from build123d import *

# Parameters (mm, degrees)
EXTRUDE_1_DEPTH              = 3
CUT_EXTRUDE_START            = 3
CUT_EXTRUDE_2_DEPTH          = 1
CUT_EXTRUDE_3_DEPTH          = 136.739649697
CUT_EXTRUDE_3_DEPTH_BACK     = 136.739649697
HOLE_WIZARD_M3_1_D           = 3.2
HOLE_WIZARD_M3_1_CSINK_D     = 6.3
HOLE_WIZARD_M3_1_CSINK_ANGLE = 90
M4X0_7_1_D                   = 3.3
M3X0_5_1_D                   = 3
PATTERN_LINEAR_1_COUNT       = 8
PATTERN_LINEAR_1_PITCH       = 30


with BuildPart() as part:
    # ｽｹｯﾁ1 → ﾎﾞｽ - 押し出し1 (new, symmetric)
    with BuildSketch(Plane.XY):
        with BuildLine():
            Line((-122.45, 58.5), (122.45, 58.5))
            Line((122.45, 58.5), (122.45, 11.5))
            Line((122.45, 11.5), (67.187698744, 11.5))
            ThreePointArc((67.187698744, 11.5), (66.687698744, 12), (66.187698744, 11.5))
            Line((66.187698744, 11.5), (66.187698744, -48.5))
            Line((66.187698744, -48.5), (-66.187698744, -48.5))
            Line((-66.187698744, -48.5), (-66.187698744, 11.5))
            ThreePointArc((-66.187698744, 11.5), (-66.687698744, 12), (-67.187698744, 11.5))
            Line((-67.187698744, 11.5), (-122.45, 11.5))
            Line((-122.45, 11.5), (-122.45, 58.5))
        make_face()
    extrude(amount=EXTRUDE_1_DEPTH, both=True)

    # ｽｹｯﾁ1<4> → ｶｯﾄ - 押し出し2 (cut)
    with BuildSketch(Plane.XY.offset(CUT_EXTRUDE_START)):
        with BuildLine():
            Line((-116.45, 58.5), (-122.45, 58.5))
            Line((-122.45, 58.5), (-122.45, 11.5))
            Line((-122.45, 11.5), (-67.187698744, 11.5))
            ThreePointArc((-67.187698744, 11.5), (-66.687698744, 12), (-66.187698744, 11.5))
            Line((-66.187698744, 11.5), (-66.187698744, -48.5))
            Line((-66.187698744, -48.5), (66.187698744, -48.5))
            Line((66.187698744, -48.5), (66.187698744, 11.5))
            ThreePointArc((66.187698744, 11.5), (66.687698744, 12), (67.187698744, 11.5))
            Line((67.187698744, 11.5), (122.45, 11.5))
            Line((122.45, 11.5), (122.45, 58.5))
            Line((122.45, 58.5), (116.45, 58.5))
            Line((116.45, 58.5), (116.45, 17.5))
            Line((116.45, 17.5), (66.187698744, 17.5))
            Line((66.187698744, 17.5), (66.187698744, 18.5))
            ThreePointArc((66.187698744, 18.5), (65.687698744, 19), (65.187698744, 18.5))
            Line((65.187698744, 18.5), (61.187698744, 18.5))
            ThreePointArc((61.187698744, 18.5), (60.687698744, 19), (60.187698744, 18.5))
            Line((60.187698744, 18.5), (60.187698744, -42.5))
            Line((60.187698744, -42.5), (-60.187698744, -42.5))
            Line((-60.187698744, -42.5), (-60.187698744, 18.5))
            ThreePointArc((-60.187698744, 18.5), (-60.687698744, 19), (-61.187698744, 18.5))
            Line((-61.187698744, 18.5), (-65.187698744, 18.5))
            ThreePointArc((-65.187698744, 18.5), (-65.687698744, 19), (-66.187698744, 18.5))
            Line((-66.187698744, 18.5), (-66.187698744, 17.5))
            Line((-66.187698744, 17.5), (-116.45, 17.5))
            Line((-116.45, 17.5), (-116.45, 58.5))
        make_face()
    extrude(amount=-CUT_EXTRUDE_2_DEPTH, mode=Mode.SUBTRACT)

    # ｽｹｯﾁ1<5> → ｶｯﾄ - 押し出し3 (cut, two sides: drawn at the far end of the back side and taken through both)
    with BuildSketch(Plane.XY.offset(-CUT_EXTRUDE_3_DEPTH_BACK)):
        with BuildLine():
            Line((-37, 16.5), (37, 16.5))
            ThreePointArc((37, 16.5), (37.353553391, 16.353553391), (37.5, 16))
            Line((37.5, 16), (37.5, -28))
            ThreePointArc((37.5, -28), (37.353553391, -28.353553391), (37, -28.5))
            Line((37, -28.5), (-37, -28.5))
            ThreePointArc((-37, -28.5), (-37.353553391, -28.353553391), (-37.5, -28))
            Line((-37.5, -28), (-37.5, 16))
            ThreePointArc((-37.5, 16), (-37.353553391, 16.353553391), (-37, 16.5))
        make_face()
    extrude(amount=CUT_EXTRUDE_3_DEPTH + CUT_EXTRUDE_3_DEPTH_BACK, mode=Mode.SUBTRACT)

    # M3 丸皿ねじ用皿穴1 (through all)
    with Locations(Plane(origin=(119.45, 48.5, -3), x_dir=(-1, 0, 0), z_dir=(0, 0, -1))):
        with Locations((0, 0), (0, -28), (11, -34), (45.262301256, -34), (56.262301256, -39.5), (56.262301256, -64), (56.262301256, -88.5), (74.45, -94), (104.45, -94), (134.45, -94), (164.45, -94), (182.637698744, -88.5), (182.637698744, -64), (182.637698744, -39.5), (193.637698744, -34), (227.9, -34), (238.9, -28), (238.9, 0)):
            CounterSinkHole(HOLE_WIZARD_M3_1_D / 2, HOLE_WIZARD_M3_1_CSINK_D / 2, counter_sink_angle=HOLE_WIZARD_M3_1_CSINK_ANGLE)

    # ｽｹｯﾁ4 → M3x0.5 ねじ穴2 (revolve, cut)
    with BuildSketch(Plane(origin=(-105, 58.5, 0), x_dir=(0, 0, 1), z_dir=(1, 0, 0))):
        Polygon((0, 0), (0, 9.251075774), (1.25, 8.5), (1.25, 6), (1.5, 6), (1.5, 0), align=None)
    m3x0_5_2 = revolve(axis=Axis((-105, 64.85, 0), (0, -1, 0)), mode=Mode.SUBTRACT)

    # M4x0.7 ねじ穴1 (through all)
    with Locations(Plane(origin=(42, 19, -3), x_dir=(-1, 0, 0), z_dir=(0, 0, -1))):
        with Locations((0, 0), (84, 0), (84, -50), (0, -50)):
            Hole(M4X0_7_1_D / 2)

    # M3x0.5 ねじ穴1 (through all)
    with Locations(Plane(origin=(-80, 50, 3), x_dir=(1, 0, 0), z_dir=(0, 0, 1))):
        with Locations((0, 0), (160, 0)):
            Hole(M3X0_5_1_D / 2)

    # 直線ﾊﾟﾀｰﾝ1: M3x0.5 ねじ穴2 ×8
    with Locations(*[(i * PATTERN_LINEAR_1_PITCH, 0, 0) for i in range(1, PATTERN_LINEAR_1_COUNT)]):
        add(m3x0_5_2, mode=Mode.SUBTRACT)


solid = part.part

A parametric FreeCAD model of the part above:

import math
import FreeCAD as App
import Part
import Sketcher
Q = App.Units.Quantity


def add_polygon(sketch, points):
    """Adds a closed chain of lines whose ends are joined by coincident constraints."""
    first, n = sketch.GeometryCount, len(points)
    for a, b in zip(points, points[1:] + points[:1]):
        sketch.addGeometry(Part.LineSegment(App.Vector(*a, 0), App.Vector(*b, 0)), False)
    for i in range(n):
        sketch.addConstraint(Sketcher.Constraint("Coincident", first + i, 2, first + (i + 1) % n, 1))

doc = App.newDocument("Part")
body = doc.addObject("PartDesign::Body", "Body")

# Sketch on XY plane
sketch1 = body.newObject("Sketcher::SketchObject", "Sketch")
sketch1.AttachmentSupport = (doc.getObject("XY_Plane"), [""])
sketch1.MapMode = "FlatFace"
sketch1.addGeometry([
    Part.LineSegment(App.Vector(122.5, 58.5, 0), App.Vector(-122.5, 58.5, 0)),  # 0
    Part.LineSegment(App.Vector(-122.5, 58.5, 0), App.Vector(-122.5, 11.5, 0)),  # 1
    Part.LineSegment(App.Vector(-122.5, 11.5, 0), App.Vector(-67.2, 11.5, 0)),  # 2
    Part.ArcOfCircle(Part.Circle(App.Vector(-66.7, 11.5, 0), App.Vector(0, 0, 1), 0.5), math.radians(0), math.radians(180)),  # 3
    Part.LineSegment(App.Vector(-66.2, 11.5, 0), App.Vector(-66.2, -48.5, 0)),  # 4
    Part.LineSegment(App.Vector(-66.2, -48.5, 0), App.Vector(66.2, -48.5, 0)),  # 5
    Part.LineSegment(App.Vector(66.2, -48.5, 0), App.Vector(66.2, 11.5, 0)),  # 6
    Part.ArcOfCircle(Part.Circle(App.Vector(66.7, 11.5, 0), App.Vector(0, 0, 1), 0.5), math.radians(0), math.radians(180)),  # 7
    Part.LineSegment(App.Vector(67.2, 11.5, 0), App.Vector(122.5, 11.5, 0)),  # 8
    Part.LineSegment(App.Vector(122.5, 11.5, 0), App.Vector(122.5, 58.5, 0)),  # 9
], False)
sketch1.addConstraint([
    Sketcher.Constraint("Coincident", 0, 2, 1, 1),
    Sketcher.Constraint("Coincident", 1, 2, 2, 1),
    Sketcher.Constraint("Coincident", 2, 2, 3, 2),
    Sketcher.Constraint("Tangent", 3, 1, 4, 1),
    Sketcher.Constraint("Coincident", 4, 2, 5, 1),
    Sketcher.Constraint("Coincident", 5, 2, 6, 1),
    Sketcher.Constraint("Tangent", 6, 2, 7, 2),
    Sketcher.Constraint("Coincident", 7, 1, 8, 1),
    Sketcher.Constraint("Coincident", 8, 2, 9, 1),
    Sketcher.Constraint("Coincident", 9, 2, 0, 1),
    Sketcher.Constraint("Horizontal", 0),
    Sketcher.Constraint("Vertical", 1),
    Sketcher.Constraint("Horizontal", 2),
    Sketcher.Constraint("Vertical", 4),
    Sketcher.Constraint("Horizontal", 5),
    Sketcher.Constraint("Vertical", 6),
    Sketcher.Constraint("Horizontal", 8),
    Sketcher.Constraint("Vertical", 9),
    Sketcher.Constraint("Equal", 3, 7),
    Sketcher.Constraint("Symmetric", 3, 3, 7, 3, -2),
    Sketcher.Constraint("Symmetric", 1, 2, 8, 2, -2),
    Sketcher.Constraint("Horizontal", 7, 3, 1, 2),
    Sketcher.Constraint("Radius", 3, Q("0.5 mm")),
    Sketcher.Constraint("DistanceY", 1, 2, 1, 1, Q("47 mm")),
    Sketcher.Constraint("DistanceY", 4, 2, 4, 1, Q("60 mm")),
    Sketcher.Constraint("DistanceX", 0, 2, 0, 1, Q("244.9 mm")),
    Sketcher.Constraint("DistanceY", -1, 1, 3, 3, Q("11.5 mm")),
    Sketcher.Constraint("DistanceX", 2, 1, 2, 2, Q("55.262301 mm")),
])
pad1 = body.newObject("PartDesign::Pad", "Pad")
pad1.Profile = sketch1
pad1.Length = 6
pad1.Midplane = True

# Sketch on XY plane
sketch2 = body.newObject("Sketcher::SketchObject", "Sketch001")
sketch2.AttachmentSupport = (doc.getObject("XY_Plane"), [""])
sketch2.MapMode = "FlatFace"
sketch2.AttachmentOffset = App.Placement(App.Vector(0, 0, 3), App.Rotation())
sketch2.addGeometry([
    Part.LineSegment(App.Vector(-116.5, 58.5, 0), App.Vector(-122.5, 58.5, 0)),  # 0
    Part.LineSegment(App.Vector(-122.5, 58.5, 0), App.Vector(-122.5, 11.5, 0)),  # 1
    Part.LineSegment(App.Vector(-122.5, 11.5, 0), App.Vector(-67.2, 11.5, 0)),  # 2
    Part.ArcOfCircle(Part.Circle(App.Vector(-66.7, 11.5, 0), App.Vector(0, 0, 1), 0.5), math.radians(0), math.radians(180)),  # 3
    Part.LineSegment(App.Vector(-66.2, 11.5, 0), App.Vector(-66.2, -48.5, 0)),  # 4
    Part.LineSegment(App.Vector(-66.2, -48.5, 0), App.Vector(66.2, -48.5, 0)),  # 5
    Part.LineSegment(App.Vector(66.2, -48.5, 0), App.Vector(66.2, 11.5, 0)),  # 6
    Part.ArcOfCircle(Part.Circle(App.Vector(66.7, 11.5, 0), App.Vector(0, 0, 1), 0.5), math.radians(0), math.radians(180)),  # 7
    Part.LineSegment(App.Vector(67.2, 11.5, 0), App.Vector(122.5, 11.5, 0)),  # 8
    Part.LineSegment(App.Vector(122.5, 11.5, 0), App.Vector(122.5, 58.5, 0)),  # 9
    Part.LineSegment(App.Vector(122.5, 58.5, 0), App.Vector(116.5, 58.5, 0)),  # 10
    Part.LineSegment(App.Vector(116.5, 58.5, 0), App.Vector(116.5, 17.5, 0)),  # 11
    Part.LineSegment(App.Vector(116.5, 17.5, 0), App.Vector(66.2, 17.5, 0)),  # 12
    Part.LineSegment(App.Vector(66.2, 17.5, 0), App.Vector(66.2, 18.5, 0)),  # 13
    Part.ArcOfCircle(Part.Circle(App.Vector(65.7, 18.5, 0), App.Vector(0, 0, 1), 0.5), math.radians(0), math.radians(180)),  # 14
    Part.LineSegment(App.Vector(65.2, 18.5, 0), App.Vector(61.2, 18.5, 0)),  # 15
    Part.ArcOfCircle(Part.Circle(App.Vector(60.7, 18.5, 0), App.Vector(0, 0, 1), 0.5), math.radians(0), math.radians(180)),  # 16
    Part.LineSegment(App.Vector(60.2, 18.5, 0), App.Vector(60.2, -42.5, 0)),  # 17
    Part.LineSegment(App.Vector(60.2, -42.5, 0), App.Vector(-60.2, -42.5, 0)),  # 18
    Part.LineSegment(App.Vector(-60.2, -42.5, 0), App.Vector(-60.2, 18.5, 0)),  # 19
    Part.ArcOfCircle(Part.Circle(App.Vector(-60.7, 18.5, 0), App.Vector(0, 0, 1), 0.5), math.radians(0), math.radians(180)),  # 20
    Part.LineSegment(App.Vector(-61.2, 18.5, 0), App.Vector(-65.2, 18.5, 0)),  # 21
    Part.ArcOfCircle(Part.Circle(App.Vector(-65.7, 18.5, 0), App.Vector(0, 0, 1), 0.5), math.radians(0), math.radians(180)),  # 22
    Part.LineSegment(App.Vector(-66.2, 18.5, 0), App.Vector(-66.2, 17.5, 0)),  # 23
    Part.LineSegment(App.Vector(-66.2, 17.5, 0), App.Vector(-116.5, 17.5, 0)),  # 24
    Part.LineSegment(App.Vector(-116.5, 17.5, 0), App.Vector(-116.5, 58.5, 0)),  # 25
], False)
sketch2.addConstraint([
    Sketcher.Constraint("Coincident", 0, 2, 1, 1),
    Sketcher.Constraint("Coincident", 1, 2, 2, 1),
    Sketcher.Constraint("Coincident", 2, 2, 3, 2),
    Sketcher.Constraint("Tangent", 3, 1, 4, 1),
    Sketcher.Constraint("Coincident", 4, 2, 5, 1),
    Sketcher.Constraint("Coincident", 5, 2, 6, 1),
    Sketcher.Constraint("Tangent", 6, 2, 7, 2),
    Sketcher.Constraint("Coincident", 7, 1, 8, 1),
    Sketcher.Constraint("Coincident", 8, 2, 9, 1),
    Sketcher.Constraint("Coincident", 9, 2, 10, 1),
    Sketcher.Constraint("Coincident", 10, 2, 11, 1),
    Sketcher.Constraint("Coincident", 11, 2, 12, 1),
    Sketcher.Constraint("Coincident", 12, 2, 13, 1),
    Sketcher.Constraint("Tangent", 13, 2, 14, 1),
    Sketcher.Constraint("Coincident", 14, 2, 15, 1),
    Sketcher.Constraint("Coincident", 15, 2, 16, 1),
    Sketcher.Constraint("Tangent", 16, 2, 17, 1),
    Sketcher.Constraint("Coincident", 17, 2, 18, 1),
    Sketcher.Constraint("Coincident", 18, 2, 19, 1),
    Sketcher.Constraint("Tangent", 19, 2, 20, 1),
    Sketcher.Constraint("Coincident", 20, 2, 21, 1),
    Sketcher.Constraint("Coincident", 21, 2, 22, 1),
    Sketcher.Constraint("Tangent", 22, 2, 23, 1),
    Sketcher.Constraint("Coincident", 23, 2, 24, 1),
    Sketcher.Constraint("Coincident", 24, 2, 25, 1),
    Sketcher.Constraint("Coincident", 25, 2, 0, 1),
    Sketcher.Constraint("Horizontal", 0),
    Sketcher.Constraint("Vertical", 1),
    Sketcher.Constraint("Horizontal", 2),
    Sketcher.Constraint("Vertical", 4),
    Sketcher.Constraint("Horizontal", 5),
    Sketcher.Constraint("Vertical", 6),
    Sketcher.Constraint("Horizontal", 8),
    Sketcher.Constraint("Vertical", 9),
    Sketcher.Constraint("Horizontal", 10),
    Sketcher.Constraint("Vertical", 11),
    Sketcher.Constraint("Horizontal", 12),
    Sketcher.Constraint("Vertical", 13),
    Sketcher.Constraint("Horizontal", 15),
    Sketcher.Constraint("Vertical", 17),
    Sketcher.Constraint("Horizontal", 18),
    Sketcher.Constraint("Vertical", 19),
    Sketcher.Constraint("Horizontal", 21),
    Sketcher.Constraint("Vertical", 23),
    Sketcher.Constraint("Horizontal", 24),
    Sketcher.Constraint("Vertical", 25),
    Sketcher.Constraint("Equal", 3, 7),
    Sketcher.Constraint("Equal", 7, 14),
    Sketcher.Constraint("Equal", 14, 16),
    Sketcher.Constraint("Equal", 16, 20),
    Sketcher.Constraint("Equal", 20, 22),
    Sketcher.Constraint("Symmetric", 3, 3, 7, 3, -2),
    Sketcher.Constraint("Symmetric", 16, 3, 20, 3, -2),
    Sketcher.Constraint("Symmetric", 14, 3, 22, 3, -2),
    Sketcher.Constraint("Symmetric", 1, 2, 8, 2, -2),
    Sketcher.Constraint("Symmetric", 11, 2, 24, 2, -2),
    Sketcher.Constraint("Horizontal", 14, 3, 16, 3),
    Sketcher.Constraint("Horizontal", 7, 3, 1, 2),
    Sketcher.Constraint("Horizontal", 0, 2, 9, 2),
    Sketcher.Constraint("Horizontal", 13, 2, 14, 2),
    Sketcher.Constraint("Horizontal", 19, 2, 20, 2),
    Sketcher.Constraint("Vertical", 6, 2, 12, 2),
    Sketcher.Constraint("Radius", 3, Q("0.5 mm")),
    Sketcher.Constraint("DistanceX", 0, 2, 0, 1, Q("6 mm")),
    Sketcher.Constraint("DistanceX", 15, 2, 15, 1, Q("4 mm")),
    Sketcher.Constraint("DistanceY", 1, 2, 1, 1, Q("47 mm")),
    Sketcher.Constraint("DistanceY", 4, 2, 4, 1, Q("60 mm")),
    Sketcher.Constraint("DistanceY", 11, 2, 11, 1, Q("41 mm")),
    Sketcher.Constraint("DistanceY", 13, 1, 13, 2, Q("1 mm")),
    Sketcher.Constraint("DistanceY", 17, 2, 17, 1, Q("61 mm")),
    Sketcher.Constraint("DistanceY", -1, 1, 3, 3, Q("11.5 mm")),
    Sketcher.Constraint("DistanceX", 0, 2, -1, 1, Q("122.45 mm")),
    Sketcher.Constraint("DistanceX", 2, 1, 2, 2, Q("55.262301 mm")),
])
pocket1 = body.newObject("PartDesign::Pocket", "Pocket")
pocket1.Profile = sketch2
pocket1.Length = 1

# Sketch on XY plane
sketch3 = body.newObject("Sketcher::SketchObject", "Sketch002")
sketch3.AttachmentSupport = (doc.getObject("XY_Plane"), [""])
sketch3.MapMode = "FlatFace"
sketch3.addGeometry([
    Part.LineSegment(App.Vector(37, 16.5, 0), App.Vector(-37, 16.5, 0)),  # 0
    Part.ArcOfCircle(Part.Circle(App.Vector(-37, 16, 0), App.Vector(0, 0, 1), 0.5), math.radians(90), math.radians(180)),  # 1
    Part.LineSegment(App.Vector(-37.5, 16, 0), App.Vector(-37.5, -28, 0)),  # 2
    Part.ArcOfCircle(Part.Circle(App.Vector(-37, -28, 0), App.Vector(0, 0, 1), 0.5), math.radians(180), math.radians(270)),  # 3
    Part.LineSegment(App.Vector(-37, -28.5, 0), App.Vector(37, -28.5, 0)),  # 4
    Part.ArcOfCircle(Part.Circle(App.Vector(37, -28, 0), App.Vector(0, 0, 1), 0.5), math.radians(-90), math.radians(0)),  # 5
    Part.LineSegment(App.Vector(37.5, -28, 0), App.Vector(37.5, 16, 0)),  # 6
    Part.ArcOfCircle(Part.Circle(App.Vector(37, 16, 0), App.Vector(0, 0, 1), 0.5), math.radians(0), math.radians(90)),  # 7
], False)
sketch3.addConstraint([
    Sketcher.Constraint("Tangent", 0, 2, 1, 1),
    Sketcher.Constraint("Tangent", 1, 2, 2, 1),
    Sketcher.Constraint("Tangent", 2, 2, 3, 1),
    Sketcher.Constraint("Tangent", 3, 2, 4, 1),
    Sketcher.Constraint("Tangent", 4, 2, 5, 1),
    Sketcher.Constraint("Tangent", 5, 2, 6, 1),
    Sketcher.Constraint("Tangent", 6, 2, 7, 1),
    Sketcher.Constraint("Tangent", 7, 2, 0, 1),
    Sketcher.Constraint("Horizontal", 0),
    Sketcher.Constraint("Vertical", 2),
    Sketcher.Constraint("Horizontal", 4),
    Sketcher.Constraint("Vertical", 6),
    Sketcher.Constraint("Equal", 1, 3),
    Sketcher.Constraint("Equal", 3, 5),
    Sketcher.Constraint("Equal", 5, 7),
    Sketcher.Constraint("Radius", 1, Q("0.5 mm")),
    Sketcher.Constraint("DistanceX", 0, 2, 0, 1, Q("74 mm")),
    Sketcher.Constraint("DistanceY", 2, 2, 2, 1, Q("44 mm")),
    Sketcher.Constraint("DistanceX", 1, 3, -1, 1, Q("37 mm")),
    Sketcher.Constraint("DistanceY", -1, 1, 1, 3, Q("16 mm")),
])
pocket2 = body.newObject("PartDesign::Pocket", "Pocket001")
pocket2.Profile = sketch3
pocket2.Type = "ThroughAll"
pocket2.Midplane = True

# Sketch on XY plane
sketch4 = body.newObject("Sketcher::SketchObject", "Sketch003")
sketch4.AttachmentSupport = (doc.getObject("XY_Plane"), [""])
sketch4.MapMode = "FlatFace"
sketch4.AttachmentOffset = App.Placement(App.Vector(0, 0, -3), App.Rotation())
sketch4.addGeometry([
    Part.Circle(App.Vector(119.5, 48.5, 0), App.Vector(0, 0, 1), 1.6),  # 0
    Part.Circle(App.Vector(119.5, 20.5, 0), App.Vector(0, 0, 1), 1.6),  # 1
    Part.Circle(App.Vector(108.5, 14.5, 0), App.Vector(0, 0, 1), 1.6),  # 2
    Part.Circle(App.Vector(74.2, 14.5, 0), App.Vector(0, 0, 1), 1.6),  # 3
    Part.Circle(App.Vector(63.2, 9, 0), App.Vector(0, 0, 1), 1.6),  # 4
    Part.Circle(App.Vector(63.2, -15.5, 0), App.Vector(0, 0, 1), 1.6),  # 5
    Part.Circle(App.Vector(63.2, -40, 0), App.Vector(0, 0, 1), 1.6),  # 6
    Part.Circle(App.Vector(45, -45.5, 0), App.Vector(0, 0, 1), 1.6),  # 7
    Part.Circle(App.Vector(15, -45.5, 0), App.Vector(0, 0, 1), 1.6),  # 8
    Part.Circle(App.Vector(-15, -45.5, 0), App.Vector(0, 0, 1), 1.6),  # 9
    Part.Circle(App.Vector(-45, -45.5, 0), App.Vector(0, 0, 1), 1.6),  # 10
    Part.Circle(App.Vector(-63.2, -40, 0), App.Vector(0, 0, 1), 1.6),  # 11
    Part.Circle(App.Vector(-63.2, -15.5, 0), App.Vector(0, 0, 1), 1.6),  # 12
    Part.Circle(App.Vector(-63.2, 9, 0), App.Vector(0, 0, 1), 1.6),  # 13
    Part.Circle(App.Vector(-74.2, 14.5, 0), App.Vector(0, 0, 1), 1.6),  # 14
    Part.Circle(App.Vector(-108.5, 14.5, 0), App.Vector(0, 0, 1), 1.6),  # 15
    Part.Circle(App.Vector(-119.5, 20.5, 0), App.Vector(0, 0, 1), 1.6),  # 16
    Part.Circle(App.Vector(-119.5, 48.5, 0), App.Vector(0, 0, 1), 1.6),  # 17
], False)
sketch4.addConstraint([
    Sketcher.Constraint("Equal", 0, 1),
    Sketcher.Constraint("Equal", 1, 2),
    Sketcher.Constraint("Equal", 2, 3),
    Sketcher.Constraint("Equal", 3, 4),
    Sketcher.Constraint("Equal", 4, 5),
    Sketcher.Constraint("Equal", 5, 6),
    Sketcher.Constraint("Equal", 6, 7),
    Sketcher.Constraint("Equal", 7, 8),
    Sketcher.Constraint("Equal", 8, 9),
    Sketcher.Constraint("Equal", 9, 10),
    Sketcher.Constraint("Equal", 10, 11),
    Sketcher.Constraint("Equal", 11, 12),
    Sketcher.Constraint("Equal", 12, 13),
    Sketcher.Constraint("Equal", 13, 14),
    Sketcher.Constraint("Equal", 14, 15),
    Sketcher.Constraint("Equal", 15, 16),
    Sketcher.Constraint("Equal", 16, 17),
    Sketcher.Constraint("Symmetric", 8, 3, 9, 3, -2),
    Sketcher.Constraint("Symmetric", 7, 3, 10, 3, -2),
    Sketcher.Constraint("Symmetric", 6, 3, 11, 3, -2),
    Sketcher.Constraint("Symmetric", 5, 3, 12, 3, -2),
    Sketcher.Constraint("Symmetric", 4, 3, 13, 3, -2),
    Sketcher.Constraint("Symmetric", 3, 3, 14, 3, -2),
    Sketcher.Constraint("Symmetric", 2, 3, 15, 3, -2),
    Sketcher.Constraint("Symmetric", 1, 3, 16, 3, -2),
    Sketcher.Constraint("Symmetric", 0, 3, 17, 3, -2),
    Sketcher.Constraint("Horizontal", 2, 3, 3, 3),
    Sketcher.Constraint("Horizontal", 7, 3, 8, 3),
    Sketcher.Constraint("Vertical", 0, 3, 1, 3),
    Sketcher.Constraint("Vertical", 4, 3, 5, 3),
    Sketcher.Constraint("Vertical", 5, 3, 6, 3),
    Sketcher.Constraint("Diameter", 0, Q("3.2 mm")),
    Sketcher.Constraint("DistanceY", -1, 1, 4, 3, Q("9 mm")),
    Sketcher.Constraint("DistanceY", 6, 3, -1, 1, Q("40 mm")),
    Sketcher.Constraint("DistanceX", -1, 1, 7, 3, Q("45 mm")),
    Sketcher.Constraint("DistanceX", -1, 1, 8, 3, Q("15 mm")),
    Sketcher.Constraint("DistanceY", 1, 3, 0, 3, Q("28 mm")),
    Sketcher.Constraint("DistanceX", 2, 3, 1, 3, Q("11 mm")),
    Sketcher.Constraint("DistanceY", 2, 3, 1, 3, Q("6 mm")),
    Sketcher.Constraint("DistanceX", 4, 3, 3, 3, Q("11 mm")),
    Sketcher.Constraint("DistanceY", 5, 3, 3, 3, Q("30 mm")),
    Sketcher.Constraint("DistanceY", 7, 3, 5, 3, Q("30 mm")),
    Sketcher.Constraint("DistanceY", -1, 1, 0, 3, Q("48.5 mm")),
    Sketcher.Constraint("DistanceX", -1, 1, 0, 3, Q("119.45 mm")),
    Sketcher.Constraint("DistanceX", -1, 1, 3, 3, Q("74.187699 mm")),
])
doc.recompute()
hole = body.newObject("PartDesign::Hole", "Hole")
hole.Profile = sketch4
hole.ThreadType = "None"
hole.Diameter = 3.2
hole.DepthType = "ThroughAll"
hole.HoleCutType = "Countersink"
hole.HoleCutDiameter = 6.3
hole.HoleCutCountersinkAngle = 90
hole.Reversed = True

# Sketch on YZ plane
sketch5 = body.newObject("Sketcher::SketchObject", "Sketch004")
sketch5.AttachmentSupport = (doc.getObject("YZ_Plane"), [""])
sketch5.MapMode = "FlatFace"
sketch5.AttachmentOffset = App.Placement(App.Vector(0, 0, -105), App.Rotation())
add_polygon(sketch5, [(49.25, 0), (58.5, 0), (58.5, 1.5), (52.5, 1.5), (52.5, 1.25), (50, 1.25)])  # lines 0-5
sketch5.addConstraint([
    Sketcher.Constraint("Horizontal", 0),
    Sketcher.Constraint("Vertical", 1),
    Sketcher.Constraint("Horizontal", 2),
    Sketcher.Constraint("Vertical", 3),
    Sketcher.Constraint("Horizontal", 4),
    Sketcher.Constraint("PointOnObject", 0, 2, -1),
    Sketcher.Constraint("DistanceX", 2, 2, 2, 1, Q("6 mm")),
    Sketcher.Constraint("Angle", 5, Q("-121 deg")),
    Sketcher.Constraint("DistanceX", 4, 2, 4, 1, Q("2.5 mm")),
    Sketcher.Constraint("DistanceY", 1, 1, 1, 2, Q("1.5 mm")),
    Sketcher.Constraint("DistanceX", -1, 1, 4, 2, Q("50 mm")),
    Sketcher.Constraint("DistanceY", 3, 2, 3, 1, Q("0.25 mm")),
])
groove = body.newObject("PartDesign::Groove", "Groove")
groove.Profile = sketch5
groove.ReferenceAxis = (sketch5, ["H_Axis"])
groove.Angle = 360

# Sketch on XY plane
sketch6 = body.newObject("Sketcher::SketchObject", "Sketch005")
sketch6.AttachmentSupport = (doc.getObject("XY_Plane"), [""])
sketch6.MapMode = "FlatFace"
sketch6.AttachmentOffset = App.Placement(App.Vector(0, 0, -3), App.Rotation())
sketch6.addGeometry([
    Part.Circle(App.Vector(42, 19, 0), App.Vector(0, 0, 1), 1.6),
    Part.Circle(App.Vector(-42, 19, 0), App.Vector(0, 0, 1), 1.6),
    Part.Circle(App.Vector(-42, -31, 0), App.Vector(0, 0, 1), 1.6),
    Part.Circle(App.Vector(42, -31, 0), App.Vector(0, 0, 1), 1.6),
], False)
sketch6.addConstraint([
    Sketcher.Constraint("Equal", 0, 1),
    Sketcher.Constraint("Equal", 1, 2),
    Sketcher.Constraint("Equal", 2, 3),
    Sketcher.Constraint("Symmetric", 0, 3, 1, 3, -2),
    Sketcher.Constraint("Symmetric", 2, 3, 3, 3, -2),
    Sketcher.Constraint("Vertical", 1, 3, 2, 3),
    Sketcher.Constraint("Diameter", 0, Q("3.3 mm")),
    Sketcher.Constraint("DistanceX", -1, 1, 0, 3, Q("42 mm")),
    Sketcher.Constraint("DistanceY", -1, 1, 0, 3, Q("19 mm")),
    Sketcher.Constraint("DistanceY", 2, 3, -1, 1, Q("31 mm")),
])
doc.recompute()
hole2 = body.newObject("PartDesign::Hole", "Hole001")
hole2.Profile = sketch6
hole2.ThreadType = "None"
hole2.Diameter = 3.3
hole2.DepthType = "ThroughAll"
hole2.Reversed = True

# Sketch on XY plane
sketch7 = body.newObject("Sketcher::SketchObject", "Sketch006")
sketch7.AttachmentSupport = (doc.getObject("XY_Plane"), [""])
sketch7.MapMode = "FlatFace"
sketch7.AttachmentOffset = App.Placement(App.Vector(0, 0, 3), App.Rotation())
sketch7.addGeometry([
    Part.Circle(App.Vector(-80, 50, 0), App.Vector(0, 0, 1), 1.5),
    Part.Circle(App.Vector(80, 50, 0), App.Vector(0, 0, 1), 1.5),
], False)
sketch7.addConstraint([
    Sketcher.Constraint("Equal", 0, 1),
    Sketcher.Constraint("Symmetric", 0, 3, 1, 3, -2),
    Sketcher.Constraint("Diameter", 0, Q("3 mm")),
    Sketcher.Constraint("DistanceX", 0, 3, -1, 1, Q("80 mm")),
    Sketcher.Constraint("DistanceY", -1, 1, 0, 3, Q("50 mm")),
])
doc.recompute()
hole3 = body.newObject("PartDesign::Hole", "Hole002")
hole3.Profile = sketch7
hole3.ThreadType = "None"
hole3.Diameter = 3
hole3.DepthType = "ThroughAll"
doc.recompute()

linearpattern = body.newObject("PartDesign::LinearPattern", "LinearPattern")
linearpattern.Originals = [groove]
linearpattern.Direction = (doc.getObject("X_Axis"), [""])
linearpattern.Mode = "offset"
linearpattern.Offset = 30
linearpattern.Occurrences = 8
body.Tip = linearpattern

doc.recompute()
